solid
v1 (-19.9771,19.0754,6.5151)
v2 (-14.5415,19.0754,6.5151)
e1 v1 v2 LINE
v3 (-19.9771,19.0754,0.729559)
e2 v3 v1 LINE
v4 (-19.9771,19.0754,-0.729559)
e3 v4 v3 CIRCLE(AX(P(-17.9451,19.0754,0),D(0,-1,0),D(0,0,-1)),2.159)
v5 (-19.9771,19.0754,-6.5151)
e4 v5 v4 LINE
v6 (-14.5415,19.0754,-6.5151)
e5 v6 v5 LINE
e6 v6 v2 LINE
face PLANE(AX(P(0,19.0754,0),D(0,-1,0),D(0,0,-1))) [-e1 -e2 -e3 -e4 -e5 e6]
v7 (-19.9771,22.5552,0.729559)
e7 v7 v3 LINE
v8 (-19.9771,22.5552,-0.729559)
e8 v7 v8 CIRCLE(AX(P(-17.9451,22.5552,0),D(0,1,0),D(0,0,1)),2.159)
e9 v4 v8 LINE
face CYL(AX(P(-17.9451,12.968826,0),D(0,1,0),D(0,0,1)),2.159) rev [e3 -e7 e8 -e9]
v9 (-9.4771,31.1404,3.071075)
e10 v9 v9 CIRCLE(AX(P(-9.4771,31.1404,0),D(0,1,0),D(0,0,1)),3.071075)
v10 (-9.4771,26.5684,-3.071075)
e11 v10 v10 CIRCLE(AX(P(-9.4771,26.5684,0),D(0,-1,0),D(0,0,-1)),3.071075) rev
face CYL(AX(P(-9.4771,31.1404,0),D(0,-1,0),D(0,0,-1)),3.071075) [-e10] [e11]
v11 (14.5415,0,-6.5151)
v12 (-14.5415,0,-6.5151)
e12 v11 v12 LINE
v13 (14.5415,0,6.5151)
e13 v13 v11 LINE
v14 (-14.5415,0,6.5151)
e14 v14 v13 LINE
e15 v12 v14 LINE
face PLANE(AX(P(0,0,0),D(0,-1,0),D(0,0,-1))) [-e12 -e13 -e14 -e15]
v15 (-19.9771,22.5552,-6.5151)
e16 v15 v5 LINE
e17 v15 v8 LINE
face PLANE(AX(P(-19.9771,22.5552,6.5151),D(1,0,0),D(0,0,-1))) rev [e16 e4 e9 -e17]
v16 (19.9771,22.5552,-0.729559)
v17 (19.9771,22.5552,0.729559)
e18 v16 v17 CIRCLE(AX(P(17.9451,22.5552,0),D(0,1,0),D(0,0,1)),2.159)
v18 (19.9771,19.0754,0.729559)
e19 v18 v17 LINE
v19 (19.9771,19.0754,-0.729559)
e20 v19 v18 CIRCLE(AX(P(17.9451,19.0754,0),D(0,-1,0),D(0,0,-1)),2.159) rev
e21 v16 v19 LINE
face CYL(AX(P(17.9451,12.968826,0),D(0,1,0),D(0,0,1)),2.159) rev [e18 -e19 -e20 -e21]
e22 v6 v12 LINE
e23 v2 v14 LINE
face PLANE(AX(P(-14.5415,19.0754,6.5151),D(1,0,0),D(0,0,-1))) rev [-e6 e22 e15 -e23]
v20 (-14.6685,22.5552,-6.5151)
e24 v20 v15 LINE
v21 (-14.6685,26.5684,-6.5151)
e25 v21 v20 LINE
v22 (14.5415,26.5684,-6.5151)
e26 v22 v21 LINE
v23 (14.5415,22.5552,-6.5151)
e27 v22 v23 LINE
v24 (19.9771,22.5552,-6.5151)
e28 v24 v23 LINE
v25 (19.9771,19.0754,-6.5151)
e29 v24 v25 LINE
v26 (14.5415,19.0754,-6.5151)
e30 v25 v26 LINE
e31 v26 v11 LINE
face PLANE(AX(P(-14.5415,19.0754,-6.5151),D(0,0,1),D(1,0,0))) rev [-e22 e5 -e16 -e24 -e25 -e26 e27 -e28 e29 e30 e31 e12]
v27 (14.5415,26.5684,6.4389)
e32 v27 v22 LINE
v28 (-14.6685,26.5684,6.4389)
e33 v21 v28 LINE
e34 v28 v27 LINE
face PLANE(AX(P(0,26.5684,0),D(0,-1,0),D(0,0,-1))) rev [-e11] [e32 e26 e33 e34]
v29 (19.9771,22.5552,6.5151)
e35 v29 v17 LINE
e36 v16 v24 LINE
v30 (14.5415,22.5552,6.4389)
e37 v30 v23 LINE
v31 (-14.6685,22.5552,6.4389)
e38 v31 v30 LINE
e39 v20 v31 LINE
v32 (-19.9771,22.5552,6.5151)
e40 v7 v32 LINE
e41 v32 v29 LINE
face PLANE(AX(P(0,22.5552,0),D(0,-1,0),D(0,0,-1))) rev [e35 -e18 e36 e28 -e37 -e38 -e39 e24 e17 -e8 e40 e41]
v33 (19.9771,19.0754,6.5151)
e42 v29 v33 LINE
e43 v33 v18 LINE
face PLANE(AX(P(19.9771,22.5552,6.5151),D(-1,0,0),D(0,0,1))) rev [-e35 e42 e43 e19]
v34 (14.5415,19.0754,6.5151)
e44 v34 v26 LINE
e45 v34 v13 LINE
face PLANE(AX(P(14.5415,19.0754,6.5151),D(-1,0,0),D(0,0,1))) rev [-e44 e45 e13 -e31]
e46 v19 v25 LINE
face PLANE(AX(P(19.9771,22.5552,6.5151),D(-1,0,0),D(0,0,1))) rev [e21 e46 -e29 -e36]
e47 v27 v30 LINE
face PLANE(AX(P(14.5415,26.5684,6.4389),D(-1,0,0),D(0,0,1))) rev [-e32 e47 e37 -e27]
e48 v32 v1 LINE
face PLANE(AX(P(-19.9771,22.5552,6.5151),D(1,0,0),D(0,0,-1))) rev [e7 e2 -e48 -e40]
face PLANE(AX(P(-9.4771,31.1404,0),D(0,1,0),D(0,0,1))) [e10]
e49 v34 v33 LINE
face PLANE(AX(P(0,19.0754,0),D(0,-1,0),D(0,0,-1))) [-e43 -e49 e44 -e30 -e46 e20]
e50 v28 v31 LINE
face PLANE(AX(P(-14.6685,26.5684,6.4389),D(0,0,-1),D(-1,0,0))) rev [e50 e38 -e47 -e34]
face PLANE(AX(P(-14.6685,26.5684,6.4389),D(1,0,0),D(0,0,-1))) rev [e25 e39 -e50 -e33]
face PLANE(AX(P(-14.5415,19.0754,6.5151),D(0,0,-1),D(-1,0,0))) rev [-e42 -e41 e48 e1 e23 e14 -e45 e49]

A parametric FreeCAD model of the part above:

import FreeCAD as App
import Part
import Sketcher
Q = App.Units.Quantity

doc = App.newDocument("Part")
body = doc.addObject("PartDesign::Body", "Body")

# Sketch on XZ plane
sketch1 = body.newObject("Sketcher::SketchObject", "Sketch")
sketch1.AttachmentSupport = (doc.getObject("XZ_Plane"), [""])
sketch1.MapMode = "FlatFace"
sketch1.addGeometry([
    Part.LineSegment(App.Vector(-15, -7, 0), App.Vector(-15, 7, 0)),
    Part.LineSegment(App.Vector(-15, 7, 0), App.Vector(15, 7, 0)),
    Part.LineSegment(App.Vector(15, 7, 0), App.Vector(15, -7, 0)),
    Part.LineSegment(App.Vector(15, -7, 0), App.Vector(-15, -7, 0)),
], False)
sketch1.addConstraint([
    Sketcher.Constraint("Coincident", 0, 2, 1, 1),
    Sketcher.Constraint("Coincident", 1, 2, 2, 1),
    Sketcher.Constraint("Coincident", 2, 2, 3, 1),
    Sketcher.Constraint("Coincident", 3, 2, 0, 1),
    Sketcher.Constraint("Vertical", 0),
    Sketcher.Constraint("Horizontal", 1),
    Sketcher.Constraint("Vertical", 2),
    Sketcher.Constraint("Horizontal", 3),
    Sketcher.Constraint("Symmetric", 0, 2, 2, 2, -1, 1),
    Sketcher.Constraint("DistanceX", 1, 1, 1, 2, Q("1.145 in")),
    Sketcher.Constraint("DistanceY", 0, 1, 0, 2, Q("0.513 in")),
])
pad1 = body.newObject("PartDesign::Pad", "Pad")
pad1.Profile = sketch1
pad1.Length = Q("0.751 in")
pad1.Reversed = True

# Sketch on XZ plane
sketch2 = body.newObject("Sketcher::SketchObject", "Sketch001")
sketch2.AttachmentSupport = (doc.getObject("XZ_Plane"), [""])
sketch2.MapMode = "FlatFace"
sketch2.AttachmentOffset = App.Placement(App.Vector(0, 0, -0.751 * 25.4), App.Rotation())
sketch2.addGeometry([
    Part.LineSegment(App.Vector(-20, -7, 0), App.Vector(-20, 7, 0)),
    Part.LineSegment(App.Vector(-20, 7, 0), App.Vector(20, 7, 0)),
    Part.LineSegment(App.Vector(20, 7, 0), App.Vector(20, -7, 0)),
    Part.LineSegment(App.Vector(20, -7, 0), App.Vector(-20, -7, 0)),
], False)
sketch2.addConstraint([
    Sketcher.Constraint("Coincident", 0, 2, 1, 1),
    Sketcher.Constraint("Coincident", 1, 2, 2, 1),
    Sketcher.Constraint("Coincident", 2, 2, 3, 1),
    Sketcher.Constraint("Coincident", 3, 2, 0, 1),
    Sketcher.Constraint("Vertical", 0),
    Sketcher.Constraint("Horizontal", 1),
    Sketcher.Constraint("Vertical", 2),
    Sketcher.Constraint("Horizontal", 3),
    Sketcher.Constraint("Symmetric", 0, 2, 2, 2, -1, 1),
    Sketcher.Constraint("DistanceX", 1, 1, 1, 2, Q("1.573 in")),
    Sketcher.Constraint("DistanceY", 0, 1, 0, 2, Q("0.513 in")),
])
pad2 = body.newObject("PartDesign::Pad", "Pad001")
pad2.Profile = sketch2
pad2.Length = Q("0.137 in")
pad2.Reversed = True

# Sketch on XZ plane
sketch3 = body.newObject("Sketcher::SketchObject", "Sketch002")
sketch3.AttachmentSupport = (doc.getObject("XZ_Plane"), [""])
sketch3.MapMode = "FlatFace"
sketch3.AttachmentOffset = App.Placement(App.Vector(0, 0, -0.888 * 25.4), App.Rotation())
sketch3.addGeometry([
    Part.LineSegment(App.Vector(-15, -7, 0), App.Vector(-15, 6, 0)),
    Part.LineSegment(App.Vector(-15, 6, 0), App.Vector(15, 6, 0)),
    Part.LineSegment(App.Vector(15, 6, 0), App.Vector(15, -7, 0)),
    Part.LineSegment(App.Vector(15, -7, 0), App.Vector(-15, -7, 0)),
], False)
sketch3.addConstraint([
    Sketcher.Constraint("Coincident", 0, 2, 1, 1),
    Sketcher.Constraint("Coincident", 1, 2, 2, 1),
    Sketcher.Constraint("Coincident", 2, 2, 3, 1),
    Sketcher.Constraint("Coincident", 3, 2, 0, 1),
    Sketcher.Constraint("Vertical", 0),
    Sketcher.Constraint("Horizontal", 1),
    Sketcher.Constraint("Vertical", 2),
    Sketcher.Constraint("Horizontal", 3),
    Sketcher.Constraint("DistanceX", 1, 1, 1, 2, Q("1.15 in")),
    Sketcher.Constraint("DistanceY", 0, 1, 0, 2, Q("0.51 in")),
    Sketcher.Constraint("DistanceX", 0, 2, -1, 1, Q("0.5775 in")),
    Sketcher.Constraint("DistanceY", -1, 1, 0, 2, Q("0.2535 in")),
])
pad3 = body.newObject("PartDesign::Pad", "Pad002")
pad3.Profile = sketch3
pad3.Length = Q("0.158 in")
pad3.Reversed = True

# Sketch on XZ plane
sketch4 = body.newObject("Sketcher::SketchObject", "Sketch003")
sketch4.AttachmentSupport = (doc.getObject("XZ_Plane"), [""])
sketch4.MapMode = "FlatFace"
sketch4.AttachmentOffset = App.Placement(App.Vector(0, 0, -1.046 * 25.4), App.Rotation())
sketch4.addGeometry(Part.Circle(App.Vector(-9.5, 0, 0), App.Vector(0, 0, 1), 3.1), False)
sketch4.addConstraint([
    Sketcher.Constraint("PointOnObject", 0, 3, -1),
    Sketcher.Constraint("Diameter", 0, Q("6.142149 mm")),
    Sketcher.Constraint("DistanceX", 0, 3, -1, 1, Q("9.4771 mm")),
])
pad4 = body.newObject("PartDesign::Pad", "Pad003")
pad4.Profile = sketch4
pad4.Length = Q("0.18 in")
pad4.Reversed = True

# Sketch on XZ plane
sketch5 = body.newObject("Sketcher::SketchObject", "Sketch004")
sketch5.AttachmentSupport = (doc.getObject("XZ_Plane"), [""])
sketch5.MapMode = "FlatFace"
sketch5.AttachmentOffset = App.Placement(App.Vector(0, 0, -0.888 * 25.4), App.Rotation())
sketch5.addGeometry([
    Part.Circle(App.Vector(-17.9, 0, 0), App.Vector(0, 0, 1), 2.2),
    Part.Circle(App.Vector(17.9, 0, 0), App.Vector(0, 0, 1), 2.2),
], False)
sketch5.addConstraint([
    Sketcher.Constraint("Equal", 0, 1),
    Sketcher.Constraint("Symmetric", 0, 3, 1, 3, -1, 1),
    Sketcher.Constraint("PointOnObject", 0, 3, -1),
    Sketcher.Constraint("Diameter", 0, Q("0.17 in")),
    Sketcher.Constraint("DistanceX", 0, 3, 1, 3, Q("1.413 in")),
])
pocket1 = body.newObject("PartDesign::Pocket", "Pocket")
pocket1.Profile = sketch5
pocket1.Length = Q("0.137 in")
pocket1.Reversed = True

doc.recompute()
